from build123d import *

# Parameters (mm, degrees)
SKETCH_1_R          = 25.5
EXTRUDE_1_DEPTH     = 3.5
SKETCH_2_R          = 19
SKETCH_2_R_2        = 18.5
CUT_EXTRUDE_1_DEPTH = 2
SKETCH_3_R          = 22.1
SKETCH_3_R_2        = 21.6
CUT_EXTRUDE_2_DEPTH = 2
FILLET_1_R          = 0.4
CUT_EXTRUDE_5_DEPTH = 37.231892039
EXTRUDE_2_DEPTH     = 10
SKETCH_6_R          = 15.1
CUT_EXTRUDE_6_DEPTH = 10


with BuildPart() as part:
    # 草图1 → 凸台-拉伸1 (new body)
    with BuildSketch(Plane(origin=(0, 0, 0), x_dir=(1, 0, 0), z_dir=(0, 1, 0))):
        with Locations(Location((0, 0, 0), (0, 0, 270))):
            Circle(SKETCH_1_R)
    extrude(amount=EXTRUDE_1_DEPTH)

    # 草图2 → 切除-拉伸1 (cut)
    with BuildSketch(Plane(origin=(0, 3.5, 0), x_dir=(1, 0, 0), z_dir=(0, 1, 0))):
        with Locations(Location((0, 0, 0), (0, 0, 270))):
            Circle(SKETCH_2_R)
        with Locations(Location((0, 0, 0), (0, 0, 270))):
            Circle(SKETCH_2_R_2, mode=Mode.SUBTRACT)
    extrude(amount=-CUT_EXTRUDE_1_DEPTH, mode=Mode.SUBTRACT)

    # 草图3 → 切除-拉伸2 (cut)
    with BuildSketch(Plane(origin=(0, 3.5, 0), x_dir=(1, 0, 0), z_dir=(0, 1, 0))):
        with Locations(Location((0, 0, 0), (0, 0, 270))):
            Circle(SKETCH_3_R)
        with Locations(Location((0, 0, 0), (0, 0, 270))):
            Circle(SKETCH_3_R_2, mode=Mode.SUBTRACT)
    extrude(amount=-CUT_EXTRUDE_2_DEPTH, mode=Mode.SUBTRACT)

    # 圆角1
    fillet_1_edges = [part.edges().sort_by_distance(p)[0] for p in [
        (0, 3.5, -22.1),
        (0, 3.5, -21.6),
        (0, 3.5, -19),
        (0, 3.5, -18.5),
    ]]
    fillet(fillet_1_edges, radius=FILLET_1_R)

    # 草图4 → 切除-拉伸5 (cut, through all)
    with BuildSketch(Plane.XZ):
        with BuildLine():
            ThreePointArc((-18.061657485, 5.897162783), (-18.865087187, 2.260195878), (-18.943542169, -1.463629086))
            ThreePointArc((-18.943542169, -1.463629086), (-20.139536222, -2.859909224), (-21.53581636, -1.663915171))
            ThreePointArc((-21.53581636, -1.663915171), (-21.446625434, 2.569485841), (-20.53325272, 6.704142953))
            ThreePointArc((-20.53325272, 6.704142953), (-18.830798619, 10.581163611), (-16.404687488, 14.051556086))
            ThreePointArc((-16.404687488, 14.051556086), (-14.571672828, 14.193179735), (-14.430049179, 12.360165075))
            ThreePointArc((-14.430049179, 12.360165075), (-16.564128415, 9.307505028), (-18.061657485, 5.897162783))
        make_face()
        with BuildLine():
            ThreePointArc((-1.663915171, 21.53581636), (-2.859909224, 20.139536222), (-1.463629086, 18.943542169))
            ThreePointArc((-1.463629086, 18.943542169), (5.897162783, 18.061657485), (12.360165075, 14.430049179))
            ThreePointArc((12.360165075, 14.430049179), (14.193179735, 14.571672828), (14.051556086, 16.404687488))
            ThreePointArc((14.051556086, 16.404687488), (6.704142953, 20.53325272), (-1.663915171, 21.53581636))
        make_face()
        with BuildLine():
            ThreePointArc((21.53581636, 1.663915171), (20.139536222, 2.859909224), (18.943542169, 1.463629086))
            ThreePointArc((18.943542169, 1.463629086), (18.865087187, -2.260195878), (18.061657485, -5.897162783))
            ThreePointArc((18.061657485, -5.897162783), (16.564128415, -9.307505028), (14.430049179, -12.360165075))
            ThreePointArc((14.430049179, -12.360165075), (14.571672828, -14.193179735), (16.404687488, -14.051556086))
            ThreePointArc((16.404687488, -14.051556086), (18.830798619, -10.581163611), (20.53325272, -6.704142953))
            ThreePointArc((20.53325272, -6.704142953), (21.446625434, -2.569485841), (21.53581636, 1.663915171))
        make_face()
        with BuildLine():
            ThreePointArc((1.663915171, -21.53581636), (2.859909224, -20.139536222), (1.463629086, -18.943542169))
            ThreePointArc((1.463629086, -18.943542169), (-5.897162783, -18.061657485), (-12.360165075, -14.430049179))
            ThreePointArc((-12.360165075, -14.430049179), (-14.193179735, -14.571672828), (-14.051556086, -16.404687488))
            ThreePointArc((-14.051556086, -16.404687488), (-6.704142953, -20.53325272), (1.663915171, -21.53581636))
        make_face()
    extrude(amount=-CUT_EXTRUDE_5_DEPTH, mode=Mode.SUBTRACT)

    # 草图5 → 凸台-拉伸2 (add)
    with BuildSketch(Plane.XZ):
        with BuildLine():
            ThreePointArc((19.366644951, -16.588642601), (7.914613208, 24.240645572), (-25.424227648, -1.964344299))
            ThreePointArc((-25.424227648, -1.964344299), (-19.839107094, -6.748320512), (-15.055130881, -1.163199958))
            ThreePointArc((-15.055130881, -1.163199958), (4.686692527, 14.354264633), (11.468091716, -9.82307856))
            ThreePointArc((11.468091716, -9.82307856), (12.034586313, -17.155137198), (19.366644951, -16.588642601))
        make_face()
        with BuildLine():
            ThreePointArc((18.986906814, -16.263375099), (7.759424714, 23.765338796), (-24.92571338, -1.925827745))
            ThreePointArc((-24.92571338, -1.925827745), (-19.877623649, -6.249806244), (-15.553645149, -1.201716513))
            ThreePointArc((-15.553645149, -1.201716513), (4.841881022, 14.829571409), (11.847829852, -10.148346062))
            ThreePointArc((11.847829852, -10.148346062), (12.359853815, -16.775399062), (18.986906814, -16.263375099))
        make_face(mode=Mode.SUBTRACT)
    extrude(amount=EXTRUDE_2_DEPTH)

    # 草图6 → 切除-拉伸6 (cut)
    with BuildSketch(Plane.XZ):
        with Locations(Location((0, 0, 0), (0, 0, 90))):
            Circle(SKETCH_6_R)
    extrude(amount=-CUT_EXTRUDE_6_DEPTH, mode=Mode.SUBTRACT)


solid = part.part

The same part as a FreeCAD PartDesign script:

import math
import FreeCAD as App
import Part
import Sketcher


def edges_at(feature, points):
    """Names of the edges that pass closest to the given points."""
    edges = feature.Shape.Edges
    near = lambda p: min(range(len(edges)), key=lambda i: edges[i].distToShape(Part.Vertex(*p))[0])
    return sorted({f"Edge{near(p) + 1}" for p in points})

doc = App.newDocument("Part")
params = doc.addObject("Spreadsheet::Sheet", "Params")
for row, (alias, value) in enumerate([
    ("sketch1_diameter", "51 mm"),
    ("pad1_length", "3.5 mm"),
    ("sketch2_diameter", "38 mm"),
    ("sketch2_diameter2", "37 mm"),
    ("pocket1_length", "2 mm"),
    ("sketch3_diameter", "44.2 mm"),
    ("sketch3_diameter2", "43.2 mm"),
    ("pocket2_length", "2 mm"),
    ("fillet_radius", "0.4 mm"),
    ("sketch4_radius", "19 mm"),
    ("sketch4_radius2", "1.3 mm"),
    ("sketch5_radius", "25 mm"),
    ("sketch5_radius2", "25.5 mm"),
    ("sketch5_radius3", "5.2 mm"),
    ("pad2_length", "10 mm"),
    ("sketch6_diameter", "30.2 mm"),
    ("pocket4_length", "10 mm"),
], start=1):
    params.set(f"A{row}", alias)
    params.set(f"B{row}", "=" + value)
    params.setAlias(f"B{row}", alias)

body = doc.addObject("PartDesign::Body", "Body")

# Sketch on XZ plane
sketch1 = body.newObject("Sketcher::SketchObject", "Sketch")
sketch1.AttachmentSupport = (doc.getObject("XZ_Plane"), [""])
sketch1.MapMode = "FlatFace"
sketch1.addGeometry(Part.Circle(App.Vector(0, 0, 0), App.Vector(0, 0, 1), 25.5), False)
sketch1.addConstraint([
    Sketcher.Constraint("Coincident", 0, 3, -1, 1),
    Sketcher.Constraint("Diameter", 0, 51.0),
])
sketch1.setExpression("Constraints[1]", "Params.sketch1_diameter")
pad1 = body.newObject("PartDesign::Pad", "Pad")
pad1.Profile = sketch1
pad1.setExpression("Length", "Params.pad1_length")
pad1.Reversed = True

# Sketch on XZ plane
sketch2 = body.newObject("Sketcher::SketchObject", "Sketch001")
sketch2.AttachmentSupport = (doc.getObject("XZ_Plane"), [""])
sketch2.MapMode = "FlatFace"
sketch2.AttachmentOffset = App.Placement(App.Vector(0, 0, -3.5), App.Rotation())
sketch2.addGeometry([
    Part.Circle(App.Vector(0, 0, 0), App.Vector(0, 0, 1), 19),
    Part.Circle(App.Vector(0, 0, 0), App.Vector(0, 0, 1), 18.5),
], False)
sketch2.addConstraint([
    Sketcher.Constraint("Coincident", 0, 3, -1, 1),
    Sketcher.Constraint("Coincident", 1, 3, -1, 1),
    Sketcher.Constraint("Diameter", 0, 38.0),
    Sketcher.Constraint("Diameter", 1, 37.0),
])
sketch2.setExpression("Constraints[2]", "Params.sketch2_diameter")
sketch2.setExpression("Constraints[3]", "Params.sketch2_diameter2")
pocket1 = body.newObject("PartDesign::Pocket", "Pocket")
pocket1.Profile = sketch2
pocket1.setExpression("Length", "Params.pocket1_length")
pocket1.Reversed = True

# Sketch on XZ plane
sketch3 = body.newObject("Sketcher::SketchObject", "Sketch002")
sketch3.AttachmentSupport = (doc.getObject("XZ_Plane"), [""])
sketch3.MapMode = "FlatFace"
sketch3.AttachmentOffset = App.Placement(App.Vector(0, 0, -3.5), App.Rotation())
sketch3.addGeometry([
    Part.Circle(App.Vector(0, 0, 0), App.Vector(0, 0, 1), 22.1),
    Part.Circle(App.Vector(0, 0, 0), App.Vector(0, 0, 1), 21.6),
], False)
sketch3.addConstraint([
    Sketcher.Constraint("Coincident", 0, 3, -1, 1),
    Sketcher.Constraint("Coincident", 1, 3, -1, 1),
    Sketcher.Constraint("Diameter", 0, 44.2),
    Sketcher.Constraint("Diameter", 1, 43.2),
])
sketch3.setExpression("Constraints[2]", "Params.sketch3_diameter")
sketch3.setExpression("Constraints[3]", "Params.sketch3_diameter2")
pocket2 = body.newObject("PartDesign::Pocket", "Pocket001")
pocket2.Profile = sketch3
pocket2.setExpression("Length", "Params.pocket2_length")
pocket2.Reversed = True
doc.recompute()

fillet = body.newObject("PartDesign::Fillet", "Fillet")
fillet.Base = (pocket2, edges_at(pocket2, [
    (0, 3.5, -22.1),
    (0, 3.5, -21.6),
    (0, 3.5, -19),
    (0, 3.5, -18.5),
]))
fillet.setExpression("Radius", "Params.fillet_radius")

# Sketch on XZ plane
sketch4 = body.newObject("Sketcher::SketchObject", "Sketch003")
sketch4.AttachmentSupport = (doc.getObject("XZ_Plane"), [""])
sketch4.MapMode = "FlatFace"
sketch4.addGeometry([
    Part.ArcOfCircle(Part.Circle(App.Vector(0, 0, 0), App.Vector(0, 0, 1), 19), math.radians(161.918049), math.radians(184.418049)),  # 0
    Part.ArcOfCircle(Part.Circle(App.Vector(0, 0, 0), App.Vector(0, 0, 1), 19), math.radians(139.418049), math.radians(161.918049)),  # 1
    Part.ArcOfCircle(Part.Circle(App.Vector(-15.417368, 13.205861, 0), App.Vector(0, 0, 1), 1.3), math.radians(-40.581951), math.radians(139.418049)),  # 2
    Part.ArcOfCircle(Part.Circle(App.Vector(0, 0, 0), App.Vector(0, 0, 1), 21.6), math.radians(139.418049), math.radians(161.918049)),  # 3
    Part.ArcOfCircle(Part.Circle(App.Vector(0, 0, 0), App.Vector(0, 0, 1), 21.6), math.radians(161.918049), math.radians(184.418049)),  # 4
    Part.ArcOfCircle(Part.Circle(App.Vector(-20.239679, -1.563772, 0), App.Vector(0, 0, 1), 1.3), math.radians(-175.581951), math.radians(4.418049)),  # 5
    Part.ArcOfCircle(Part.Circle(App.Vector(-1.563772, 20.239679, 0), App.Vector(0, 0, 1), 1.3), math.radians(94.418049), math.radians(274.418049)),  # 6
    Part.ArcOfCircle(Part.Circle(App.Vector(0, 0, 0), App.Vector(0, 0, 1), 19), math.radians(49.418049), math.radians(94.418049)),  # 7
    Part.ArcOfCircle(Part.Circle(App.Vector(13.205861, 15.417368, 0), App.Vector(0, 0, 1), 1.3), math.radians(-130.581951), math.radians(49.418049)),  # 8
    Part.ArcOfCircle(Part.Circle(App.Vector(0, 0, 0), App.Vector(0, 0, 1), 21.6), math.radians(49.418049), math.radians(94.418049)),  # 9
    Part.ArcOfCircle(Part.Circle(App.Vector(20.239679, 1.563772, 0), App.Vector(0, 0, 1), 1.3), math.radians(4.418049), math.radians(184.418049)),  # 10
    Part.ArcOfCircle(Part.Circle(App.Vector(0, 0, 0), App.Vector(0, 0, 1), 19), math.radians(-18.081951), math.radians(4.418049)),  # 11
    Part.ArcOfCircle(Part.Circle(App.Vector(0, 0, 0), App.Vector(0, 0, 1), 19), math.radians(-40.581951), math.radians(-18.081951)),  # 12
    Part.ArcOfCircle(Part.Circle(App.Vector(15.417368, -13.205861, 0), App.Vector(0, 0, 1), 1.3), math.radians(139.418049), math.radians(319.418049)),  # 13
    Part.ArcOfCircle(Part.Circle(App.Vector(0, 0, 0), App.Vector(0, 0, 1), 21.6), math.radians(-40.581951), math.radians(-18.081951)),  # 14
    Part.ArcOfCircle(Part.Circle(App.Vector(0, 0, 0), App.Vector(0, 0, 1), 21.6), math.radians(-18.081951), math.radians(4.418049)),  # 15
    Part.ArcOfCircle(Part.Circle(App.Vector(1.563772, -20.239679, 0), App.Vector(0, 0, 1), 1.3), math.radians(-85.581951), math.radians(94.418049)),  # 16
    Part.ArcOfCircle(Part.Circle(App.Vector(0, 0, 0), App.Vector(0, 0, 1), 19), math.radians(-130.581951), math.radians(-85.581951)),  # 17
    Part.ArcOfCircle(Part.Circle(App.Vector(-13.205861, -15.417368, 0), App.Vector(0, 0, 1), 1.3), math.radians(49.418049), math.radians(229.418049)),  # 18
    Part.ArcOfCircle(Part.Circle(App.Vector(0, 0, 0), App.Vector(0, 0, 1), 21.6), math.radians(-130.581951), math.radians(-85.581951)),  # 19
], False)
sketch4.addConstraint([
    Sketcher.Constraint("Tangent", 0, 1, 1, 2),
    Sketcher.Constraint("Tangent", 1, 1, 2, 1),
    Sketcher.Constraint("Tangent", 2, 2, 3, 1),
    Sketcher.Constraint("Tangent", 3, 2, 4, 1),
    Sketcher.Constraint("Tangent", 4, 2, 5, 1),
    Sketcher.Constraint("Tangent", 5, 2, 0, 2),
    Sketcher.Constraint("Tangent", 6, 2, 7, 2),
    Sketcher.Constraint("Tangent", 7, 1, 8, 1),
    Sketcher.Constraint("Tangent", 8, 2, 9, 1),
    Sketcher.Constraint("Tangent", 9, 2, 6, 1),
    Sketcher.Constraint("Tangent", 10, 2, 11, 2),
    Sketcher.Constraint("Tangent", 11, 1, 12, 2),
    Sketcher.Constraint("Tangent", 12, 1, 13, 1),
    Sketcher.Constraint("Tangent", 13, 2, 14, 1),
    Sketcher.Constraint("Tangent", 14, 2, 15, 1),
    Sketcher.Constraint("Tangent", 15, 2, 10, 1),
    Sketcher.Constraint("Tangent", 16, 2, 17, 2),
    Sketcher.Constraint("Tangent", 17, 1, 18, 1),
    Sketcher.Constraint("Tangent", 18, 2, 19, 1),
    Sketcher.Constraint("Tangent", 19, 2, 16, 1),
    Sketcher.Constraint("Coincident", 0, 3, -1, 1),
    Sketcher.Constraint("Coincident", 3, 3, -1, 1),
    Sketcher.Constraint("Coincident", 7, 3, -1, 1),
    Sketcher.Constraint("Coincident", 9, 3, -1, 1),
    Sketcher.Constraint("Coincident", 11, 3, -1, 1),
    Sketcher.Constraint("Coincident", 14, 3, -1, 1),
    Sketcher.Constraint("Coincident", 17, 3, -1, 1),
    Sketcher.Constraint("Coincident", 19, 3, -1, 1),
    Sketcher.Constraint("Equal", 0, 1),
    Sketcher.Constraint("Equal", 3, 4),
    Sketcher.Constraint("Equal", 5, 6),
    Sketcher.Constraint("Equal", 1, 7),
    Sketcher.Constraint("Equal", 8, 10),
    Sketcher.Constraint("Equal", 7, 11),
    Sketcher.Constraint("Equal", 11, 12),
    Sketcher.Constraint("Equal", 10, 13),
    Sketcher.Constraint("Equal", 13, 16),
    Sketcher.Constraint("Equal", 12, 17),
    Sketcher.Constraint("Radius", 0, 19.0),
    Sketcher.Constraint("Radius", 2, 1.3),
    Sketcher.Constraint("DistanceX", 2, 3, -1, 1, 15.417368),
    Sketcher.Constraint("DistanceX", 5, 3, -1, 1, 20.239679),
    Sketcher.Constraint("DistanceY", -1, 1, 6, 3, 20.239679),
    Sketcher.Constraint("DistanceX", -1, 1, 8, 3, 13.205861),
    Sketcher.Constraint("DistanceX", -1, 1, 10, 3, 20.239679),
    Sketcher.Constraint("DistanceX", -1, 1, 13, 3, 15.417368),
    Sketcher.Constraint("DistanceY", 16, 3, -1, 1, 20.239679),
    Sketcher.Constraint("DistanceX", 18, 3, -1, 1, 13.205861),
    Sketcher.Constraint("DistanceX", 0, 1, 2, 3, 2.644289),
    Sketcher.Constraint("DistanceY", 0, 1, 3, 2, 0.80698),
    Sketcher.Constraint("DistanceY", 11, 1, 10, 2, 7.360792),
    Sketcher.Constraint("DistanceY", 14, 2, 11, 1, 0.80698),
])
sketch4.setExpression("Constraints[38]", "Params.sketch4_radius")
sketch4.setExpression("Constraints[39]", "Params.sketch4_radius2")
pocket3 = body.newObject("PartDesign::Pocket", "Pocket002")
pocket3.Profile = sketch4
pocket3.Type = "ThroughAll"

# Sketch on XZ plane
sketch5 = body.newObject("Sketcher::SketchObject", "Sketch004")
sketch5.AttachmentSupport = (doc.getObject("XZ_Plane"), [""])
sketch5.MapMode = "FlatFace"
sketch5.addGeometry([
    Part.ArcOfCircle(Part.Circle(App.Vector(0, 0, 0), App.Vector(0, 0, 1), 25.5), math.radians(-40.581951), math.radians(184.418049)),  # 0
    Part.ArcOfCircle(Part.Circle(App.Vector(-20.239679, -1.563772, 0), App.Vector(0, 0, 1), 5.2), math.radians(-175.581951), math.radians(4.418049)),  # 1
    Part.ArcOfCircle(Part.Circle(App.Vector(0, 0, 0), App.Vector(0, 0, 1), 15.1), math.radians(-40.581951), math.radians(184.418049)),  # 2
    Part.ArcOfCircle(Part.Circle(App.Vector(15.417368, -13.205861, 0), App.Vector(0, 0, 1), 5.2), math.radians(139.418049), math.radians(319.418049)),  # 3
    Part.ArcOfCircle(Part.Circle(App.Vector(0, 0, 0), App.Vector(0, 0, 1), 25), math.radians(-40.581951), math.radians(184.418049)),  # 4
    Part.ArcOfCircle(Part.Circle(App.Vector(15.417368, -13.205861, 0), App.Vector(0, 0, 1), 4.7), math.radians(139.418049), math.radians(319.418049)),  # 5
    Part.ArcOfCircle(Part.Circle(App.Vector(0, 0, 0), App.Vector(0, 0, 1), 15.6), math.radians(-40.581951), math.radians(184.418049)),  # 6
    Part.ArcOfCircle(Part.Circle(App.Vector(-20.239679, -1.563772, 0), App.Vector(0, 0, 1), 4.7), math.radians(-175.581951), math.radians(4.418049)),  # 7
], False)
sketch5.addConstraint([
    Sketcher.Constraint("Tangent", 0, 2, 1, 1),
    Sketcher.Constraint("Tangent", 1, 2, 2, 2),
    Sketcher.Constraint("Tangent", 2, 1, 3, 1),
    Sketcher.Constraint("Tangent", 3, 2, 0, 1),
    Sketcher.Constraint("Tangent", 4, 1, 5, 2),
    Sketcher.Constraint("Tangent", 5, 1, 6, 1),
    Sketcher.Constraint("Tangent", 6, 2, 7, 2),
    Sketcher.Constraint("Tangent", 7, 1, 4, 2),
    Sketcher.Constraint("Coincident", 0, 3, -1, 1),
    Sketcher.Constraint("Coincident", 2, 3, -1, 1),
    Sketcher.Constraint("Coincident", 4, 3, -1, 1),
    Sketcher.Constraint("Coincident", 6, 3, -1, 1),
    Sketcher.Constraint("Coincident", 5, 3, 3, 3),
    Sketcher.Constraint("Radius", 4, 25.0),
    Sketcher.Constraint("Radius", 0, 25.5),
    Sketcher.Constraint("Radius", 1, 5.2),
    Sketcher.Constraint("DistanceY", 1, 2, -1, 1, 1.1632),
    Sketcher.Constraint("DistanceX", -1, 1, 3, 3, 15.417368),
    Sketcher.Constraint("DistanceX", 7, 3, -1, 1, 20.239679),
])
sketch5.setExpression("Constraints[13]", "Params.sketch5_radius")
sketch5.setExpression("Constraints[14]", "Params.sketch5_radius2")
sketch5.setExpression("Constraints[15]", "Params.sketch5_radius3")
pad2 = body.newObject("PartDesign::Pad", "Pad001")
pad2.Profile = sketch5
pad2.setExpression("Length", "Params.pad2_length")

# Sketch on XZ plane
sketch6 = body.newObject("Sketcher::SketchObject", "Sketch005")
sketch6.AttachmentSupport = (doc.getObject("XZ_Plane"), [""])
sketch6.MapMode = "FlatFace"
sketch6.addGeometry(Part.Circle(App.Vector(0, 0, 0), App.Vector(0, 0, 1), 15.1), False)
sketch6.addConstraint([
    Sketcher.Constraint("Coincident", 0, 3, -1, 1),
    Sketcher.Constraint("Diameter", 0, 30.2),
])
sketch6.setExpression("Constraints[1]", "Params.sketch6_diameter")
pocket4 = body.newObject("PartDesign::Pocket", "Pocket003")
pocket4.Profile = sketch6
pocket4.setExpression("Length", "Params.pocket4_length")

doc.recompute()
